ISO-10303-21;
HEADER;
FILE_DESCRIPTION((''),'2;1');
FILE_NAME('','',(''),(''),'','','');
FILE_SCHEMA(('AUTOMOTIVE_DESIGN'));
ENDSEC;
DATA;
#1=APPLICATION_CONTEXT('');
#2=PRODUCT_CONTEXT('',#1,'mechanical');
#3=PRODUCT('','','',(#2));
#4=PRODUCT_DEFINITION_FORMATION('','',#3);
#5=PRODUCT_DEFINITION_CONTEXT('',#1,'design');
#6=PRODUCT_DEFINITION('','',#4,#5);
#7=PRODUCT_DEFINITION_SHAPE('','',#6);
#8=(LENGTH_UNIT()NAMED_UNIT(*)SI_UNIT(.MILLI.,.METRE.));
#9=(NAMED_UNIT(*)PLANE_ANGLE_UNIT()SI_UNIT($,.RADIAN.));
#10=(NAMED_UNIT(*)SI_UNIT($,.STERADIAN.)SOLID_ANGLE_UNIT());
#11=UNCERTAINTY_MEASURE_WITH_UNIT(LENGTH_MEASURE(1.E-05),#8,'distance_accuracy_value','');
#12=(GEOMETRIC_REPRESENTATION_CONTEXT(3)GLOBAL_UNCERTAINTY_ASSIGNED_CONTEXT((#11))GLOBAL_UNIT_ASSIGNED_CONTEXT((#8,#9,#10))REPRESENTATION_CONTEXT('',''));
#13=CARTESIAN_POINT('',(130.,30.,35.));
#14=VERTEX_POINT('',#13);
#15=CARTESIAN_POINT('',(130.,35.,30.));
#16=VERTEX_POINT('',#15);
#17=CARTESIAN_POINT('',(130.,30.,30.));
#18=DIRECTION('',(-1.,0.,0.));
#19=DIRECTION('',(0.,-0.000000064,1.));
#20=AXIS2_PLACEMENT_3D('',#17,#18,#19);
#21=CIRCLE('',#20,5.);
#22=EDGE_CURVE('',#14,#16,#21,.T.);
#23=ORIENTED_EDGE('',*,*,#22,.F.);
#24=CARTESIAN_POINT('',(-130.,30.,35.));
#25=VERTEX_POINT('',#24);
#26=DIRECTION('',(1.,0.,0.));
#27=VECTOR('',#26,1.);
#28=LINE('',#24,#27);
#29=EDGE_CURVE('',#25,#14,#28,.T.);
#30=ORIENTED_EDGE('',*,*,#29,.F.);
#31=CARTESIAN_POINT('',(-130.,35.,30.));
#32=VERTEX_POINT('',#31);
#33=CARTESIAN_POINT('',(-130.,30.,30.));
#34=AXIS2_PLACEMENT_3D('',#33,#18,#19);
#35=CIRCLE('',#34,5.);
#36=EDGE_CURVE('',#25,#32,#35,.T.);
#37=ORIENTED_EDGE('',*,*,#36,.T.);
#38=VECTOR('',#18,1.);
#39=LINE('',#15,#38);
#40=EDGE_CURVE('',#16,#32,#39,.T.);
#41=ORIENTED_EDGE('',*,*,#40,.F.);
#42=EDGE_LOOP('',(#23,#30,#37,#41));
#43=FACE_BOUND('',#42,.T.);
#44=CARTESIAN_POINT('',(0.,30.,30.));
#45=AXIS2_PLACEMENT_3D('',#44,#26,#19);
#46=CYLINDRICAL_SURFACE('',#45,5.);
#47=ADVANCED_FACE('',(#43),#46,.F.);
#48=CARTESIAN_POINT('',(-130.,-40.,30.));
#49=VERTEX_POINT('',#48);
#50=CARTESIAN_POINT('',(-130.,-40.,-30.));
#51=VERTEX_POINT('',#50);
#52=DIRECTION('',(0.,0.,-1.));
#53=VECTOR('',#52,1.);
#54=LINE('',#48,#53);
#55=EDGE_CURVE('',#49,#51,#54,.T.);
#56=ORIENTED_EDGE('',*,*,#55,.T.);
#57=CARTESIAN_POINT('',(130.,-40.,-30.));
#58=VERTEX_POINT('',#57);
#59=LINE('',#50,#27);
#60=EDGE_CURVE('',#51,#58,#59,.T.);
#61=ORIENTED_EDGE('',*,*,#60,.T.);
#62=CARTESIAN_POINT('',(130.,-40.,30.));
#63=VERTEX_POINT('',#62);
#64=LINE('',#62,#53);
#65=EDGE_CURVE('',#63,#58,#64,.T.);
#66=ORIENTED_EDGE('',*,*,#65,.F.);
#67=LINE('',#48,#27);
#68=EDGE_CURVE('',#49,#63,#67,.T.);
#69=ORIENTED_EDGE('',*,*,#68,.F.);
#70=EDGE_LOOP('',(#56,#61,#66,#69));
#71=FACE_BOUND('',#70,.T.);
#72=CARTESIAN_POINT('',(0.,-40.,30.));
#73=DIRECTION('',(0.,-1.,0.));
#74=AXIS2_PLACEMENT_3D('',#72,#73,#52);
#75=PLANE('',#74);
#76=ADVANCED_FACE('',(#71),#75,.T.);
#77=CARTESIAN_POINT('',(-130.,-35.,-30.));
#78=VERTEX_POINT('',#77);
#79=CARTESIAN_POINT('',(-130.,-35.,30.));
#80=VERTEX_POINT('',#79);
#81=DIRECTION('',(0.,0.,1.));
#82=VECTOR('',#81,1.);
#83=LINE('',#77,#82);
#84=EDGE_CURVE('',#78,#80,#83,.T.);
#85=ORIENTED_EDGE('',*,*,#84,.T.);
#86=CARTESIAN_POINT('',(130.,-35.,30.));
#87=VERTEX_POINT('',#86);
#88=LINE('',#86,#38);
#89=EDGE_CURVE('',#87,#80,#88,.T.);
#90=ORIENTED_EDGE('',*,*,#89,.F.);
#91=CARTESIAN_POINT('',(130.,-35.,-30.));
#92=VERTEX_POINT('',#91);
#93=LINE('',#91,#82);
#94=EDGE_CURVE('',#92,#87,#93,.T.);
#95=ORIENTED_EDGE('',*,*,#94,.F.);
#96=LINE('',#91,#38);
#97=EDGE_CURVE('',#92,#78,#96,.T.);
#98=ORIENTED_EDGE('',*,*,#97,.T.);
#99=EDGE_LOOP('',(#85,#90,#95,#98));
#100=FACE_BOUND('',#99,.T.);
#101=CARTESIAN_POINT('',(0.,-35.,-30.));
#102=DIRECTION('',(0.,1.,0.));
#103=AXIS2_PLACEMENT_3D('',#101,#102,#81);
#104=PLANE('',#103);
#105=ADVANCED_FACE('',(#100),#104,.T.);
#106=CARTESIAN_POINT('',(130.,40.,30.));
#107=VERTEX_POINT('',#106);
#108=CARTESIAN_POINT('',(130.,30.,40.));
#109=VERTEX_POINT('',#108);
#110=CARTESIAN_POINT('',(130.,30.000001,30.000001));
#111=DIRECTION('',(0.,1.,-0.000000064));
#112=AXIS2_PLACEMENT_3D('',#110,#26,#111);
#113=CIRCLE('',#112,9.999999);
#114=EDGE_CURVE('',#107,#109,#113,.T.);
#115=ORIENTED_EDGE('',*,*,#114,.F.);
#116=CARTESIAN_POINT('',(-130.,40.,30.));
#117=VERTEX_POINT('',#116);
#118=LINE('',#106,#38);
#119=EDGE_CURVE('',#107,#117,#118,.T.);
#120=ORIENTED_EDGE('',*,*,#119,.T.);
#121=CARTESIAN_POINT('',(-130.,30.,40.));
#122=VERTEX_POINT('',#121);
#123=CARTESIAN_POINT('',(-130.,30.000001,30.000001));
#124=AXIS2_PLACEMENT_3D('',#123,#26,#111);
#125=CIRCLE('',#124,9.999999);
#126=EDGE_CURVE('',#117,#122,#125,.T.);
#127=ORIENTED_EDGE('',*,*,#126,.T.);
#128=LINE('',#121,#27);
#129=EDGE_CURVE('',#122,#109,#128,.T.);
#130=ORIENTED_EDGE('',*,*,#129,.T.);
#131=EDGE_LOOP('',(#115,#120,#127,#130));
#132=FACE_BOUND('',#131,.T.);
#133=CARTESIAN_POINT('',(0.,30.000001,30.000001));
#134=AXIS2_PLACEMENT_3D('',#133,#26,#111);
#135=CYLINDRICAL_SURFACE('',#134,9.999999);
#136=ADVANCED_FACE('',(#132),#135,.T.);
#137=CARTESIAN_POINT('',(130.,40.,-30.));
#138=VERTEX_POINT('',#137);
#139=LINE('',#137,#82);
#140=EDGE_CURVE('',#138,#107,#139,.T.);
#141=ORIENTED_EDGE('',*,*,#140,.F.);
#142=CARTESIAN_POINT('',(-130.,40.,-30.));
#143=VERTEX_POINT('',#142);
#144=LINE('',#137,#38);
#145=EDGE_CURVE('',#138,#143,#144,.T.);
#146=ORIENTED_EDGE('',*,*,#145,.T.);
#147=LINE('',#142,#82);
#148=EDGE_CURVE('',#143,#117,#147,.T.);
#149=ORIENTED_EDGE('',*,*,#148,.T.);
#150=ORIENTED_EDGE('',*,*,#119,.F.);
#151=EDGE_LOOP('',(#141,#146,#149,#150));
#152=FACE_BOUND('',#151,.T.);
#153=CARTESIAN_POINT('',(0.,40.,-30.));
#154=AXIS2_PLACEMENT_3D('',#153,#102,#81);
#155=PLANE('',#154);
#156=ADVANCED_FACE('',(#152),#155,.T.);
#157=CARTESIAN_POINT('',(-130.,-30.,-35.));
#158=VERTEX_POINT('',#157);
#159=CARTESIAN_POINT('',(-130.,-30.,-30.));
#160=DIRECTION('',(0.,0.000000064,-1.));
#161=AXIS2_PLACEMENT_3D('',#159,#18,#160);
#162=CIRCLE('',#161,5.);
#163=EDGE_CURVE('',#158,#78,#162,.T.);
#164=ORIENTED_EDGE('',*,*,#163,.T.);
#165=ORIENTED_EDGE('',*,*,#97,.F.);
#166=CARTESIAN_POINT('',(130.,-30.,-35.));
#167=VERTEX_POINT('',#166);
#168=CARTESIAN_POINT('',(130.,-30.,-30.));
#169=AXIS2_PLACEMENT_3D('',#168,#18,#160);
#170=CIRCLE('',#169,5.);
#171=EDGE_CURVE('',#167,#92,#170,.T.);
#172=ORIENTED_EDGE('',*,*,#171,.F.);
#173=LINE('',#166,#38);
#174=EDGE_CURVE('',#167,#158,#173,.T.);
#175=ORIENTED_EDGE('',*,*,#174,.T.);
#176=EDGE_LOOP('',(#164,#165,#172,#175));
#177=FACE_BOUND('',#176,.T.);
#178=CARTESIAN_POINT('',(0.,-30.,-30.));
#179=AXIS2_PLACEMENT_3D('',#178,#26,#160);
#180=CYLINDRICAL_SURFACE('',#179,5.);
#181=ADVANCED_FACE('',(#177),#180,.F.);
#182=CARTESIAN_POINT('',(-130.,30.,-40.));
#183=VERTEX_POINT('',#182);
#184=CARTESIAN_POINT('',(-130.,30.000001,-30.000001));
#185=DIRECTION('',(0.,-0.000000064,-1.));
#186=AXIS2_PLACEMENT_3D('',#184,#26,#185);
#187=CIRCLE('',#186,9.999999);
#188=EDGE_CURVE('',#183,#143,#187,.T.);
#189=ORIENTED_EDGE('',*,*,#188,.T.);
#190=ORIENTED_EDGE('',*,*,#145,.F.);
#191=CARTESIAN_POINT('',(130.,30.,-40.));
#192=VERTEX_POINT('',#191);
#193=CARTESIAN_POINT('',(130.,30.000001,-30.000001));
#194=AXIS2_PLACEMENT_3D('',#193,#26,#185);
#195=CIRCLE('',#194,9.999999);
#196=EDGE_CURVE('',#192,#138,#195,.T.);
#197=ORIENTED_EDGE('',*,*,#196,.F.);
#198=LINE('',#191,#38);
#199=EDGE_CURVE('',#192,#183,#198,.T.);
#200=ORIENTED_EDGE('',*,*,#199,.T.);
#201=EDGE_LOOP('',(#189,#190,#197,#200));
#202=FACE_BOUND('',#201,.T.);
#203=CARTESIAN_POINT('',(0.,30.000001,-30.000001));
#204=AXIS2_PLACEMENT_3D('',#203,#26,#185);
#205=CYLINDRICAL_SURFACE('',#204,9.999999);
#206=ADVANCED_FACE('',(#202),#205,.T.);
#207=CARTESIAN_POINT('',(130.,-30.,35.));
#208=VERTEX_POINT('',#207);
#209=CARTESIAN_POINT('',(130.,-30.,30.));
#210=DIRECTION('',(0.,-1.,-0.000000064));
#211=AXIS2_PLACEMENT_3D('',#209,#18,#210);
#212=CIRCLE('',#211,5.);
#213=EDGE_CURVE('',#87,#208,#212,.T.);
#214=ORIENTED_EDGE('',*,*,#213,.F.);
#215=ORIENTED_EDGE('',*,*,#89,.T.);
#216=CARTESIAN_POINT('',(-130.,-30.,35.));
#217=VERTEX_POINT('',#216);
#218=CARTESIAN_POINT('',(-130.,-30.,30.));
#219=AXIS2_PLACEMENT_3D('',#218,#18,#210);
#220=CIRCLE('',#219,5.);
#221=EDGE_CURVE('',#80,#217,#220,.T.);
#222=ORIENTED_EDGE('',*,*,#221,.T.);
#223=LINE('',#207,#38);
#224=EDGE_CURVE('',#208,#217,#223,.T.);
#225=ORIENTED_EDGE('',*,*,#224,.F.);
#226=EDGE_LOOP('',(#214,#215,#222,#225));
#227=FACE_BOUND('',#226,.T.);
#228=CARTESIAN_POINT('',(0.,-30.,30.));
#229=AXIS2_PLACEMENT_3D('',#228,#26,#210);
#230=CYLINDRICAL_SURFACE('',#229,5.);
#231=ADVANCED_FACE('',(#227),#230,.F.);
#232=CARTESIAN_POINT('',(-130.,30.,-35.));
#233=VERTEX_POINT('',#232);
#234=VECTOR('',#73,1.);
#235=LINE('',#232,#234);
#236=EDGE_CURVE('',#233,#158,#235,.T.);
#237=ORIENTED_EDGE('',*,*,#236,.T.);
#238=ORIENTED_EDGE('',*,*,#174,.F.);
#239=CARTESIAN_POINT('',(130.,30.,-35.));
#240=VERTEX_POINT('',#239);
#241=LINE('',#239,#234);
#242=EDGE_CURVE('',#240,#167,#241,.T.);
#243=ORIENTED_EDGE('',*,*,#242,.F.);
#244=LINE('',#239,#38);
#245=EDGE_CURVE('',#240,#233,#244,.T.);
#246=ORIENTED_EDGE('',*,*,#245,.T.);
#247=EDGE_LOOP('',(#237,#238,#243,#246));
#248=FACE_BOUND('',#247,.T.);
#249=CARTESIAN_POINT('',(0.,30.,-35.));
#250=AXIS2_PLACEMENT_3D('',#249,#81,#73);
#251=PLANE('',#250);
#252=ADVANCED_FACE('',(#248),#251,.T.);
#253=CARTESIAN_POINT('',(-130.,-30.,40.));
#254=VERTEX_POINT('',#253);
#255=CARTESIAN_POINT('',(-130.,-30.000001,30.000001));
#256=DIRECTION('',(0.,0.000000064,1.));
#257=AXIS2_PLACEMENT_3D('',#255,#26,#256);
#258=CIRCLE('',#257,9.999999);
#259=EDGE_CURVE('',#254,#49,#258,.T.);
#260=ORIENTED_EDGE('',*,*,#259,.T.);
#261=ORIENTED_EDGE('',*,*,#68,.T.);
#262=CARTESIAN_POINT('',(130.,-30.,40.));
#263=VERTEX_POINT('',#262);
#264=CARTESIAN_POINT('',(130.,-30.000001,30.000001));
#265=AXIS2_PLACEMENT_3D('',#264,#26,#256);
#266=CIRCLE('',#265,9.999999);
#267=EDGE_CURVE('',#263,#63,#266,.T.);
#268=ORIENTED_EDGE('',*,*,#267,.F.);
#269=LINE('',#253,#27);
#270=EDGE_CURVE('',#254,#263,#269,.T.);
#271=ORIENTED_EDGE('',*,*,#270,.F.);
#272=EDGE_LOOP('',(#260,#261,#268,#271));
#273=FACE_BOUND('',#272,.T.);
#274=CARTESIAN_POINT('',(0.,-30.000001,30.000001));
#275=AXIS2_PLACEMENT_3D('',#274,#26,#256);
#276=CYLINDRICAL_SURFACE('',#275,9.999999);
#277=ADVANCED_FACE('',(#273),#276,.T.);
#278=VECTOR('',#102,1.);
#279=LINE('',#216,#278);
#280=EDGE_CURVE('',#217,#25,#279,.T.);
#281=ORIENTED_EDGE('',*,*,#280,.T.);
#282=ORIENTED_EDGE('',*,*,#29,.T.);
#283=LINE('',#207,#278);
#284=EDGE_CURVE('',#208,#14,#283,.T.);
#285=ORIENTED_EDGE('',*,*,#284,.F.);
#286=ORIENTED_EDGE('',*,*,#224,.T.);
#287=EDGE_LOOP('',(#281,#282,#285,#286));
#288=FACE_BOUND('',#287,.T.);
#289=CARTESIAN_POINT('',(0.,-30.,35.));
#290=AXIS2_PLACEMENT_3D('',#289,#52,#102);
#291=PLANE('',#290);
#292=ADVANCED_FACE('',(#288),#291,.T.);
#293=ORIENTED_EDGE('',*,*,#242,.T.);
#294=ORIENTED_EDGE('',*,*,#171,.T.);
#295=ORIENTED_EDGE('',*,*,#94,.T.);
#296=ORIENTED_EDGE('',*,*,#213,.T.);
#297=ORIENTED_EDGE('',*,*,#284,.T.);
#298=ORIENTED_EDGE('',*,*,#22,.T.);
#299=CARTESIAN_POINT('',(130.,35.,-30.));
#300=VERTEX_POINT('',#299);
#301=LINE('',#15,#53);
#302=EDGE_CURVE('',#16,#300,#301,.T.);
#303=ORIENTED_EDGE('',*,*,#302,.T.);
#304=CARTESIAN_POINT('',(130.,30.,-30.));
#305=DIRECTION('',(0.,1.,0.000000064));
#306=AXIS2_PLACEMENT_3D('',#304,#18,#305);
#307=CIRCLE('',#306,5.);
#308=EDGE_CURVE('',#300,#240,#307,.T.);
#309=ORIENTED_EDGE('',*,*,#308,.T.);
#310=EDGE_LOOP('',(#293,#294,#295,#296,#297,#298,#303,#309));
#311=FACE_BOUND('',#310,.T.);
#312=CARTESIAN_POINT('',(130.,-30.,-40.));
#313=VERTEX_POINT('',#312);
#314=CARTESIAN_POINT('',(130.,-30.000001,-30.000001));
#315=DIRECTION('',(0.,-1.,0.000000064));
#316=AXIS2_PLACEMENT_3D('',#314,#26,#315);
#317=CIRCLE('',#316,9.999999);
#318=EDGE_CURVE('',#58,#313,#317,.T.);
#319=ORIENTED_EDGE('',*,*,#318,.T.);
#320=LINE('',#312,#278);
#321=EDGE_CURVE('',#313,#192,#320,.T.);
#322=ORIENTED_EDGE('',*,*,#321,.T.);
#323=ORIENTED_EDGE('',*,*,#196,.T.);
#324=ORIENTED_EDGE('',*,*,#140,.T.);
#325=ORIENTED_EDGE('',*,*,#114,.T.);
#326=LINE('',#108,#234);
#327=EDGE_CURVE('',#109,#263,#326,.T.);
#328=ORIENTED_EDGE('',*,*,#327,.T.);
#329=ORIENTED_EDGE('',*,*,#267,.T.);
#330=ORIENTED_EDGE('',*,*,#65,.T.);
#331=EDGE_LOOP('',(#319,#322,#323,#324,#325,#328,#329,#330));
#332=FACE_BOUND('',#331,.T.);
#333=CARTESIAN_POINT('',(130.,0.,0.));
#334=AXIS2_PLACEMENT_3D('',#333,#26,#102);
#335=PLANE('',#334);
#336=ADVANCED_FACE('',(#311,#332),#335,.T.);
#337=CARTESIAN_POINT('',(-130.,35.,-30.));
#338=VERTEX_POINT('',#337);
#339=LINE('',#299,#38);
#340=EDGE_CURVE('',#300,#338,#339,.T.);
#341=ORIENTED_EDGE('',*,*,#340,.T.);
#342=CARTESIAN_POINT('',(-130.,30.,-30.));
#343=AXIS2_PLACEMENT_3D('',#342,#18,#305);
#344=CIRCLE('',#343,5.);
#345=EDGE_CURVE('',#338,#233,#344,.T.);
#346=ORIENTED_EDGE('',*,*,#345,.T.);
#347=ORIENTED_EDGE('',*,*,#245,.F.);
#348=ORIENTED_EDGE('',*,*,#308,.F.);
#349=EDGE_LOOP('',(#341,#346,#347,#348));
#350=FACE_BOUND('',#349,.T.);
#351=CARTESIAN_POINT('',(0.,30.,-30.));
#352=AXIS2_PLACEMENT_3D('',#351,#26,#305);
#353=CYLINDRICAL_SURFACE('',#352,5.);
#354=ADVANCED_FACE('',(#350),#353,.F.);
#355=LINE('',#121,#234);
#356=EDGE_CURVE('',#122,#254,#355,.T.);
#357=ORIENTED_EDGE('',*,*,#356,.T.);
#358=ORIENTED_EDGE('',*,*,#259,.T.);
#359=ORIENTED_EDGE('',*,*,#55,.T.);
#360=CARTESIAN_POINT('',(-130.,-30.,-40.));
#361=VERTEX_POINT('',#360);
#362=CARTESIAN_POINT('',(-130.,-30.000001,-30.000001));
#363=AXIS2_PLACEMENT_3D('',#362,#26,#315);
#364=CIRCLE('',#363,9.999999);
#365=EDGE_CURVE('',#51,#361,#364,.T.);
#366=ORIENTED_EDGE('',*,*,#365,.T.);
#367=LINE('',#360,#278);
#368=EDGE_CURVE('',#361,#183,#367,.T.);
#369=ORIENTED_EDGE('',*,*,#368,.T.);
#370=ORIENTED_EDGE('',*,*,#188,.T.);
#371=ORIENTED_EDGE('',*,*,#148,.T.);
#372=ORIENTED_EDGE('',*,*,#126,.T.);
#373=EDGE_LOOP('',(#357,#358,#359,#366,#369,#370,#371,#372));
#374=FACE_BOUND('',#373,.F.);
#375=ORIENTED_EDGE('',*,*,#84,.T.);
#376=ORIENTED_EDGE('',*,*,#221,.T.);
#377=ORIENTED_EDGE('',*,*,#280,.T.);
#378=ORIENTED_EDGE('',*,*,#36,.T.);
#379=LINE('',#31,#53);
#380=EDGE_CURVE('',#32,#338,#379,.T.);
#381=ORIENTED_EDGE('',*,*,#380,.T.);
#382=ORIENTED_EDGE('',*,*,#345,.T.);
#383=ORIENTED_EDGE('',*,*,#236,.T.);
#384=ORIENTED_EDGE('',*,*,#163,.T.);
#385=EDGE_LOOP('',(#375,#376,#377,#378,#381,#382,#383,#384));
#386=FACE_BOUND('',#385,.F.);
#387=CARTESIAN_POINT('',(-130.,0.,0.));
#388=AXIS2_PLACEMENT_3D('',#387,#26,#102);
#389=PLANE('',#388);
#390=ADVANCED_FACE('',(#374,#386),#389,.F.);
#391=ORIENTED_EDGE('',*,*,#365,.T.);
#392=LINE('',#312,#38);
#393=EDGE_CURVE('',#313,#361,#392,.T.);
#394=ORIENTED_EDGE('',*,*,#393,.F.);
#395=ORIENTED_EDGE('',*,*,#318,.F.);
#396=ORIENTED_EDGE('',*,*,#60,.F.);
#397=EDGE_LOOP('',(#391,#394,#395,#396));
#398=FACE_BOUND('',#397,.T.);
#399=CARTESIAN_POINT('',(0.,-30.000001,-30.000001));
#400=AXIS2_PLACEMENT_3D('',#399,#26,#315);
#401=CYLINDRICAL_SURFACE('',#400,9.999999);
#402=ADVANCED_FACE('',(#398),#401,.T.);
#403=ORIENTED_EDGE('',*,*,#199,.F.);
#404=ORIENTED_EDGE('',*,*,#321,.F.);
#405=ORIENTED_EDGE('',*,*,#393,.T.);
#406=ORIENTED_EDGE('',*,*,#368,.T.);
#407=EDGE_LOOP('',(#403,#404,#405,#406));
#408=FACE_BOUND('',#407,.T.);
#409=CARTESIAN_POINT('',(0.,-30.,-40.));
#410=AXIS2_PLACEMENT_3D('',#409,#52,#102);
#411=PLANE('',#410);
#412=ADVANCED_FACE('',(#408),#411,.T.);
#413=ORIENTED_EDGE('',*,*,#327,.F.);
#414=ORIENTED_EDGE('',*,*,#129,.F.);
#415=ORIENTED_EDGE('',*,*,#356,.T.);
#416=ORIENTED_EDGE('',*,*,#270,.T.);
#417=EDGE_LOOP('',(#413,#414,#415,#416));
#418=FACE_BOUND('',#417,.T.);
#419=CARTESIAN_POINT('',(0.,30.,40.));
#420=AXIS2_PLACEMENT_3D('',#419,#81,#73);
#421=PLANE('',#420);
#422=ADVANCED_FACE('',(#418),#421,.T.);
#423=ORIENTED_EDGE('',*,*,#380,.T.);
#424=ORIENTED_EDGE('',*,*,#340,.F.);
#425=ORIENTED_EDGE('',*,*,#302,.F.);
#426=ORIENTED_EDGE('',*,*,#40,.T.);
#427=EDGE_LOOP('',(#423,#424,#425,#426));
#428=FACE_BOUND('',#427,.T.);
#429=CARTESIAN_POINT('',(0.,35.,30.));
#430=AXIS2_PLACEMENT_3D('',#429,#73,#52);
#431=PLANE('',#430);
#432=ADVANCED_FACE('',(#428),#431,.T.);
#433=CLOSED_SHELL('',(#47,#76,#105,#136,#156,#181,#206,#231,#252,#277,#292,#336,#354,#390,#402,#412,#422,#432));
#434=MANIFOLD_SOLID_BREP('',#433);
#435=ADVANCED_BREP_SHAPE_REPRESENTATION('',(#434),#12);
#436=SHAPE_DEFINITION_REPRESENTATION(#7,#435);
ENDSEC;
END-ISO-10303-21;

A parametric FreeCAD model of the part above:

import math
import FreeCAD as App
import Part
import Sketcher

V = App.Vector
Q = App.Units.Quantity

doc = App.newDocument("Part")
params = doc.addObject("Spreadsheet::Sheet", "Params")
for row, (alias, value) in enumerate([
    ("sketch1_radius", "9.999999 mm"),
    ("sketch1_radius2", "5 mm"),
    ("sketch1_width", "60 mm"),
    ("pad1_length", "260 mm"),
], start=1):
    params.set(f"A{row}", alias)
    params.set(f"B{row}", "=" + value)
    params.setAlias(f"B{row}", alias)

body = doc.addObject("PartDesign::Body", "Body")

sketch1 = body.newObject("Sketcher::SketchObject", "Sketch")
sketch1.AttachmentSupport = (doc.getObject("YZ_Plane"), [""])
sketch1.MapMode = "FlatFace"
sketch1.addGeometry([
    Part.ArcOfCircle(Part.Circle(V(30.000001, 30.000001, 0), V(0, 0, 1), 9.999999), math.radians(-0.000004), math.radians(90.000004)),
    Part.LineSegment(V(30, 40, 0), V(-30, 40, 0)),
    Part.ArcOfCircle(Part.Circle(V(-30.000001, 30.000001, 0), V(0, 0, 1), 9.999999), math.radians(89.999996), math.radians(180.000004)),
    Part.LineSegment(V(-40, 30, 0), V(-40, -30, 0)),
    Part.ArcOfCircle(Part.Circle(V(-30.000001, -30.000001, 0), V(0, 0, 1), 9.999999), math.radians(179.999996), math.radians(270.000004)),
    Part.LineSegment(V(-30, -40, 0), V(30, -40, 0)),
    Part.ArcOfCircle(Part.Circle(V(30.000001, -30.000001, 0), V(0, 0, 1), 9.999999), math.radians(-90.000004), math.radians(0.000004)),
    Part.LineSegment(V(40, -30, 0), V(40, 30, 0)),
    Part.LineSegment(V(-30, 35, 0), V(30, 35, 0)),
    Part.ArcOfCircle(Part.Circle(V(30, 30, 0), V(0, 0, 1), 5), math.radians(-0.000004), math.radians(90.000004)),
    Part.LineSegment(V(35, 30, 0), V(35, -30, 0)),
    Part.ArcOfCircle(Part.Circle(V(30, -30, 0), V(0, 0, 1), 5), math.radians(-90.000004), math.radians(0.000004)),
    Part.LineSegment(V(30, -35, 0), V(-30, -35, 0)),
    Part.ArcOfCircle(Part.Circle(V(-30, -30, 0), V(0, 0, 1), 5), math.radians(179.999996), math.radians(270.000004)),
    Part.LineSegment(V(-35, -30, 0), V(-35, 30, 0)),
    Part.ArcOfCircle(Part.Circle(V(-30, 30, 0), V(0, 0, 1), 5), math.radians(89.999996), math.radians(180.000004)),
], False)
sketch1.addConstraint([
    Sketcher.Constraint("Tangent", 0, 2, 1, 1),
    Sketcher.Constraint("Tangent", 1, 2, 2, 1),
    Sketcher.Constraint("Tangent", 2, 2, 3, 1),
    Sketcher.Constraint("Tangent", 3, 2, 4, 1),
    Sketcher.Constraint("Tangent", 4, 2, 5, 1),
    Sketcher.Constraint("Tangent", 5, 2, 6, 1),
    Sketcher.Constraint("Tangent", 6, 2, 7, 1),
    Sketcher.Constraint("Tangent", 7, 2, 0, 1),
    Sketcher.Constraint("Tangent", 8, 2, 9, 2),
    Sketcher.Constraint("Tangent", 9, 1, 10, 1),
    Sketcher.Constraint("Tangent", 10, 2, 11, 2),
    Sketcher.Constraint("Tangent", 11, 1, 12, 1),
    Sketcher.Constraint("Tangent", 12, 2, 13, 2),
    Sketcher.Constraint("Tangent", 13, 1, 14, 1),
    Sketcher.Constraint("Tangent", 14, 2, 15, 2),
    Sketcher.Constraint("Tangent", 15, 1, 8, 1),
    Sketcher.Constraint("Horizontal", 1),
    Sketcher.Constraint("Vertical", 3),
    Sketcher.Constraint("Horizontal", 5),
    Sketcher.Constraint("Vertical", 7),
    Sketcher.Constraint("Horizontal", 8),
    Sketcher.Constraint("Vertical", 10),
    Sketcher.Constraint("Horizontal", 12),
    Sketcher.Constraint("Vertical", 14),
    Sketcher.Constraint("Coincident", 9, 3, 0, 3),
    Sketcher.Constraint("Coincident", 11, 3, 6, 3),
    Sketcher.Constraint("Coincident", 13, 3, 4, 3),
    Sketcher.Constraint("Equal", 0, 2),
    Sketcher.Constraint("Equal", 2, 4),
    Sketcher.Constraint("Equal", 4, 6),
    Sketcher.Constraint("Equal", 13, 15),
    Sketcher.Constraint("Symmetric", 0, 3, 4, 3, -1, 1),
    Sketcher.Constraint("Equal", 12, 3),
    Sketcher.Constraint("Radius", 0, Q("9.999999 mm")),
    Sketcher.Constraint("Radius", 9, Q("5 mm")),
    Sketcher.Constraint("DistanceX", 1, 2, 1, 1, Q("60 mm")),
])
sketch1.setExpression("Constraints[33]", "Params.sketch1_radius")
sketch1.setExpression("Constraints[34]", "Params.sketch1_radius2")
sketch1.setExpression("Constraints[35]", "Params.sketch1_width")
pad1 = body.newObject("PartDesign::Pad", "Pad")
pad1.Profile = sketch1
pad1.setExpression("Length", "Params.pad1_length")
pad1.Midplane = True

doc.recompute()
